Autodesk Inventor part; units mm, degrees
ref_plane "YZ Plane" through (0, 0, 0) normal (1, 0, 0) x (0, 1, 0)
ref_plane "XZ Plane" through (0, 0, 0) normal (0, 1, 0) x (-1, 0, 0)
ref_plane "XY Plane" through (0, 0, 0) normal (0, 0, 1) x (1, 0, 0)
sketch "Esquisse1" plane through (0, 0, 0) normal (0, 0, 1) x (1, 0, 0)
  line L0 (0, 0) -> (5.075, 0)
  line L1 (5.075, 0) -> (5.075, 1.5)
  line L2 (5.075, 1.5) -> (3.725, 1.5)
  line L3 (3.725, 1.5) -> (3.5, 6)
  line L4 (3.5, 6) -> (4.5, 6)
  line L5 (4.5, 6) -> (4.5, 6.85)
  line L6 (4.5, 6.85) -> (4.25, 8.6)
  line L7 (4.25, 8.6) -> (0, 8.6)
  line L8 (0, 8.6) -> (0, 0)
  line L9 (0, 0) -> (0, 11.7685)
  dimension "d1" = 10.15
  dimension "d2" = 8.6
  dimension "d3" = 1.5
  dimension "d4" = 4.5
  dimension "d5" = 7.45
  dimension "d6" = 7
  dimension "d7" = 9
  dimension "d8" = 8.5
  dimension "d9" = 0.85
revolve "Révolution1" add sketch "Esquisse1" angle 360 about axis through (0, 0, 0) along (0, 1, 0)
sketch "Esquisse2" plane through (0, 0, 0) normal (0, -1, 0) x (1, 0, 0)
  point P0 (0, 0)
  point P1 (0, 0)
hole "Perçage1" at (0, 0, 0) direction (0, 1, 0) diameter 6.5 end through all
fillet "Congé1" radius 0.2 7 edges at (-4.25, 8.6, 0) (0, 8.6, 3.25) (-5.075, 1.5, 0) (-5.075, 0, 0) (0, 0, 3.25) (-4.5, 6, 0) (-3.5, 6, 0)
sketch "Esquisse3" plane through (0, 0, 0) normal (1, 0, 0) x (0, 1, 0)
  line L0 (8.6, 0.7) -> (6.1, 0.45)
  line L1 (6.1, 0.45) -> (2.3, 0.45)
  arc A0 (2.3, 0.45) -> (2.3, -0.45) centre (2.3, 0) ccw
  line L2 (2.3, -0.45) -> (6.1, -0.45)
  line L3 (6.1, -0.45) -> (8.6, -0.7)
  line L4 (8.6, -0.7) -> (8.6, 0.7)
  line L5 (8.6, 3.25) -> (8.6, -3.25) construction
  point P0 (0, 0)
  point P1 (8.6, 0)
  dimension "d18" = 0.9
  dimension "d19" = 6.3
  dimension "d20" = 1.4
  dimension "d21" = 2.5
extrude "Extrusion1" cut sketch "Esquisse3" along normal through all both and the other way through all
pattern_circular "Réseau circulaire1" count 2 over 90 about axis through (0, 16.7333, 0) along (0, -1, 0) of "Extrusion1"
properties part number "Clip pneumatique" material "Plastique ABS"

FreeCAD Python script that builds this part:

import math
import FreeCAD as App
import Part
import Sketcher

V = App.Vector


def edges_at(feature, points):
    """Names of the edges that pass closest to the given points."""
    edges = feature.Shape.Edges
    near = lambda p: min(range(len(edges)), key=lambda i: edges[i].distToShape(Part.Vertex(*p))[0])
    return sorted({f"Edge{near(p) + 1}" for p in points})


def add_polygon(sketch, points):
    """Adds a closed chain of lines whose ends are joined by coincident constraints."""
    first, n = sketch.GeometryCount, len(points)
    for a, b in zip(points, points[1:] + points[:1]):
        sketch.addGeometry(Part.LineSegment(App.Vector(*a, 0), App.Vector(*b, 0)), False)
    for i in range(n):
        sketch.addConstraint(Sketcher.Constraint("Coincident", first + i, 2, first + (i + 1) % n, 1))

doc = App.newDocument("Part")
body = doc.addObject("PartDesign::Body", "Body")

# Sketch on XY plane
sketch1 = body.newObject("Sketcher::SketchObject", "Sketch")
sketch1.AttachmentSupport = (doc.getObject("XY_Plane"), [""])
sketch1.MapMode = "FlatFace"
add_polygon(sketch1, [(0, 8.6), (0, 0), (5.1, 0), (5.1, 1.5), (3.7, 1.5), (3.5, 6), (4.5, 6), (4.5, 6.8), (4.2, 8.6)])  # lines 0-8
sketch1.addConstraint(Sketcher.Constraint("Vertical", 0))
sketch1.addConstraint(Sketcher.Constraint("Horizontal", 1))
sketch1.addConstraint(Sketcher.Constraint("Vertical", 2))
sketch1.addConstraint(Sketcher.Constraint("Horizontal", 3))
sketch1.addConstraint(Sketcher.Constraint("Horizontal", 5))
sketch1.addConstraint(Sketcher.Constraint("Vertical", 6))
sketch1.addConstraint(Sketcher.Constraint("Horizontal", 8))
sketch1.addConstraint(Sketcher.Constraint("Coincident", 0, 2, -1, 1))
sketch1.addConstraint(Sketcher.Constraint("DistanceY", 0, 2, 0, 1, 8.6))
sketch1.addConstraint(Sketcher.Constraint("DistanceY", 2, 1, 2, 2, 1.5))
sketch1.addConstraint(Sketcher.Constraint("DistanceY", 6, 1, 6, 2, 0.85))
sketch1.addConstraint(Sketcher.Constraint("DistanceX", -1, 1, 5, 2, 4.5))
sketch1.addConstraint(Sketcher.Constraint("DistanceY", 3, 2, 4, 2, 4.5))
sketch1.addConstraint(Sketcher.Constraint("DistanceX", 5, 1, 5, 2, 1.0))
sketch1.addConstraint(Sketcher.Constraint("DistanceX", 3, 2, 3, 1, 1.35))
sketch1.addConstraint(Sketcher.Constraint("DistanceX", 8, 2, 8, 1, 4.25))
sketch1.addConstraint(Sketcher.Constraint("DistanceX", 1, 1, 1, 2, 5.075))
revolution = body.newObject("PartDesign::Revolution", "Revolution")
revolution.Profile = sketch1
revolution.ReferenceAxis = (sketch1, ["V_Axis"])
revolution.Angle = 360

# Sketch on XZ plane
sketch2 = body.newObject("Sketcher::SketchObject", "Sketch001")
sketch2.AttachmentSupport = (doc.getObject("XZ_Plane"), [""])
sketch2.MapMode = "FlatFace"
sketch2.addGeometry(Part.Circle(V(0, 0, 0), V(0, 0, 1), 3.2), False)
sketch2.addConstraint(Sketcher.Constraint("Coincident", 0, 3, -1, 1))
sketch2.addConstraint(Sketcher.Constraint("Diameter", 0, 6.5))
doc.recompute()
hole = body.newObject("PartDesign::Hole", "Hole")
hole.Profile = sketch2
hole.ThreadType = "None"
hole.Diameter = 6.5
hole.DepthType = "ThroughAll"
doc.recompute()

fillet = body.newObject("PartDesign::Fillet", "Fillet")
fillet.Base = (hole, edges_at(hole, [
    (-4.25, 8.6, 0),
    (0, 8.6, 3.25),
    (-5.075, 1.5, 0),
    (-5.075, 0, 0),
    (0, 0, 3.25),
    (-4.5, 6, 0),
    (-3.5, 6, 0),
]))
fillet.Radius = 0.2

# Sketch on YZ plane
sketch3 = body.newObject("Sketcher::SketchObject", "Sketch002")
sketch3.AttachmentSupport = (doc.getObject("YZ_Plane"), [""])
sketch3.MapMode = "FlatFace"
sketch3.addGeometry(Part.LineSegment(V(8.6, -0.7, 0), V(8.6, 0.7, 0)), False)
sketch3.addGeometry(Part.LineSegment(V(8.6, 0.7, 0), V(6.1, 0.45, 0)), False)
sketch3.addGeometry(Part.LineSegment(V(6.1, 0.45, 0), V(2.3, 0.45, 0)), False)
sketch3.addGeometry(Part.ArcOfCircle(Part.Circle(V(2.3, 0, 0), V(0, 0, 1), 0.45), math.radians(90), math.radians(270)), False)
sketch3.addGeometry(Part.LineSegment(V(2.3, -0.45, 0), V(6.1, -0.45, 0)), False)
sketch3.addGeometry(Part.LineSegment(V(6.1, -0.45, 0), V(8.6, -0.7, 0)), False)
sketch3.addConstraint(Sketcher.Constraint("Coincident", 0, 2, 1, 1))
sketch3.addConstraint(Sketcher.Constraint("Coincident", 1, 2, 2, 1))
sketch3.addConstraint(Sketcher.Constraint("Tangent", 2, 2, 3, 1))
sketch3.addConstraint(Sketcher.Constraint("Tangent", 3, 2, 4, 1))
sketch3.addConstraint(Sketcher.Constraint("Coincident", 4, 2, 5, 1))
sketch3.addConstraint(Sketcher.Constraint("Coincident", 5, 2, 0, 1))
sketch3.addConstraint(Sketcher.Constraint("Vertical", 0))
sketch3.addConstraint(Sketcher.Constraint("Horizontal", 2))
sketch3.addConstraint(Sketcher.Constraint("Horizontal", 4))
sketch3.addConstraint(Sketcher.Constraint("Symmetric", 1, 2, 4, 2, -1))
sketch3.addConstraint(Sketcher.Constraint("Equal", 1, 5))
sketch3.addConstraint(Sketcher.Constraint("Radius", 3, 0.45))
sketch3.addConstraint(Sketcher.Constraint("DistanceY", 0, 1, 0, 2, 1.4))
sketch3.addConstraint(Sketcher.Constraint("DistanceX", 3, 3, 0, 2, 6.3))
sketch3.addConstraint(Sketcher.Constraint("DistanceX", 1, 2, 0, 2, 2.5))
sketch3.addConstraint(Sketcher.Constraint("DistanceX", -1, 1, 3, 3, 2.3))
pocket1 = body.newObject("PartDesign::Pocket", "Pocket")
pocket1.Profile = sketch3
pocket1.Type = "ThroughAll"
pocket1.Midplane = True
doc.recompute()

polarpattern = body.newObject("PartDesign::PolarPattern", "PolarPattern")
polarpattern.Originals = [pocket1]
polarpattern.Axis = (doc.getObject("Y_Axis"), [""])
polarpattern.Angle = 90
polarpattern.Occurrences = 2
polarpattern.Reversed = True
body.Tip = polarpattern

doc.recompute()
